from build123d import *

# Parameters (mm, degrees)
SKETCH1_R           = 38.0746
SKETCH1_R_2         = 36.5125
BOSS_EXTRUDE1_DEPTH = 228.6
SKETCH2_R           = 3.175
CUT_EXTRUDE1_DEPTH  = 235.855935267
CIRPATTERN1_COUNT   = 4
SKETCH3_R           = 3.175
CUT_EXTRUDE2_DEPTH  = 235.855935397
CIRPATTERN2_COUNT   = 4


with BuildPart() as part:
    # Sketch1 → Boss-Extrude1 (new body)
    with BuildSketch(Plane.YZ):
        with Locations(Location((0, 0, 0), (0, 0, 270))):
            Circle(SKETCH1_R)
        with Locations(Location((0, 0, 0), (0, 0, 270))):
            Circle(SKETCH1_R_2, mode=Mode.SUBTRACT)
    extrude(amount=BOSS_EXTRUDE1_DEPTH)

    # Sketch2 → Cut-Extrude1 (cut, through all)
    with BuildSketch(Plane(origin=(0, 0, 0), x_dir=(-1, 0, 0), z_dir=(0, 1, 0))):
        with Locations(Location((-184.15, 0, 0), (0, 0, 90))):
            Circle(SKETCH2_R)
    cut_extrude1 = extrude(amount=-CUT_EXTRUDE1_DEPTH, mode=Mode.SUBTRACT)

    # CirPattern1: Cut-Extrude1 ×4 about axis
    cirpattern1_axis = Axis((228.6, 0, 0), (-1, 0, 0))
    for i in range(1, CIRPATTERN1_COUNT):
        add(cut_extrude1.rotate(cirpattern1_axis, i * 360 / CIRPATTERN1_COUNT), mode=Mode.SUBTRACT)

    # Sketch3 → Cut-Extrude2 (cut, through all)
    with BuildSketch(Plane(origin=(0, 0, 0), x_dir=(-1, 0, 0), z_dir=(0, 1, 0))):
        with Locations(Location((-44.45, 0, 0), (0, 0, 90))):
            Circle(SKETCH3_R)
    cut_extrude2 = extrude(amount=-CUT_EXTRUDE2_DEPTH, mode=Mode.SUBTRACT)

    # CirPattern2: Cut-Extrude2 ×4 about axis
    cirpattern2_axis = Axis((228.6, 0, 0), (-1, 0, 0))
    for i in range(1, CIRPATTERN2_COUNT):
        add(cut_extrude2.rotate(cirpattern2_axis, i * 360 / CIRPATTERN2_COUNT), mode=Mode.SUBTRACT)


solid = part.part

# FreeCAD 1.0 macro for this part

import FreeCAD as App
import Part
import Sketcher
from FreeCAD import Vector
Q = App.Units.Quantity

doc = App.newDocument("Part")
params = doc.addObject("Spreadsheet::Sheet", "Params")
for row, (alias, value) in enumerate([
    ("sketch1_diameter", "2.998 in"),
    ("sketch1_diameter2", "2.875 in"),
    ("pad1_length", "9 in"),
    ("sketch2_diameter", "0.25 in"),
    ("sketch3_diameter", "0.25 in"),
], start=1):
    params.set(f"A{row}", alias)
    params.set(f"B{row}", "=" + value)
    params.setAlias(f"B{row}", alias)

body = doc.addObject("PartDesign::Body", "Body")

# Sketch on YZ plane
sketch1 = doc.addObject("Sketcher::SketchObject", "Sketch")
body.addObject(sketch1)
sketch1.AttachmentSupport = (doc.YZ_Plane, [""])
sketch1.MapMode = "FlatFace"
sketch1.addGeometry(Part.Circle(Vector(0, 0, 0), Vector(0, 0, 1), 38.0746), False)
sketch1.addGeometry(Part.Circle(Vector(0, 0, 0), Vector(0, 0, 1), 36.5125), False)
sketch1.addConstraint(Sketcher.Constraint("Coincident", 0, 3, -1, 1))
sketch1.addConstraint(Sketcher.Constraint("Coincident", 1, 3, -1, 1))
sketch1.addConstraint(Sketcher.Constraint("Diameter", 0, Q("2.998 in")))
sketch1.addConstraint(Sketcher.Constraint("Diameter", 1, Q("2.875 in")))
sketch1.setExpression("Constraints[2]", "Params.sketch1_diameter")
sketch1.setExpression("Constraints[3]", "Params.sketch1_diameter2")
pad1 = doc.addObject("PartDesign::Pad", "Pad")
body.addObject(pad1)
pad1.Profile = sketch1
pad1.setExpression("Length", "Params.pad1_length")

# Sketch on XZ plane
sketch2 = doc.addObject("Sketcher::SketchObject", "Sketch001")
body.addObject(sketch2)
sketch2.AttachmentSupport = (doc.XZ_Plane, [""])
sketch2.MapMode = "FlatFace"
sketch2.addGeometry(Part.Circle(Vector(184.15, 0, 0), Vector(0, 0, 1), 3.175), False)
sketch2.addConstraint(Sketcher.Constraint("PointOnObject", 0, 3, -1))
sketch2.addConstraint(Sketcher.Constraint("Diameter", 0, Q("0.25 in")))
sketch2.addConstraint(Sketcher.Constraint("DistanceX", -1, 1, 0, 3, Q("7.25 in")))
sketch2.setExpression("Constraints[1]", "Params.sketch2_diameter")
pocket1 = doc.addObject("PartDesign::Pocket", "Pocket")
body.addObject(pocket1)
pocket1.Profile = sketch2
pocket1.Type = "ThroughAll"
pocket1.Reversed = True
doc.recompute()

polarpattern = doc.addObject("PartDesign::PolarPattern", "PolarPattern")
body.addObject(polarpattern)
polarpattern.Originals = [pocket1]
polarpattern.Axis = (doc.X_Axis, [""])
polarpattern.Angle = 360
polarpattern.Occurrences = 4
body.Tip = polarpattern

# Sketch on XZ plane
sketch3 = doc.addObject("Sketcher::SketchObject", "Sketch002")
body.addObject(sketch3)
sketch3.AttachmentSupport = (doc.XZ_Plane, [""])
sketch3.MapMode = "FlatFace"
sketch3.addGeometry(Part.Circle(Vector(44.45, 0, 0), Vector(0, 0, 1), 3.175), False)
sketch3.addConstraint(Sketcher.Constraint("PointOnObject", 0, 3, -1))
sketch3.addConstraint(Sketcher.Constraint("Diameter", 0, Q("0.25 in")))
sketch3.addConstraint(Sketcher.Constraint("DistanceX", -1, 1, 0, 3, Q("1.75 in")))
sketch3.setExpression("Constraints[1]", "Params.sketch3_diameter")
pocket2 = doc.addObject("PartDesign::Pocket", "Pocket001")
body.addObject(pocket2)
pocket2.Profile = sketch3
pocket2.Type = "ThroughAll"
pocket2.Reversed = True
doc.recompute()

polarpattern2 = doc.addObject("PartDesign::PolarPattern", "PolarPattern001")
body.addObject(polarpattern2)
polarpattern2.Originals = [pocket2]
polarpattern2.Axis = (doc.X_Axis, [""])
polarpattern2.Angle = 360
polarpattern2.Occurrences = 4
body.Tip = polarpattern2

doc.recompute()
